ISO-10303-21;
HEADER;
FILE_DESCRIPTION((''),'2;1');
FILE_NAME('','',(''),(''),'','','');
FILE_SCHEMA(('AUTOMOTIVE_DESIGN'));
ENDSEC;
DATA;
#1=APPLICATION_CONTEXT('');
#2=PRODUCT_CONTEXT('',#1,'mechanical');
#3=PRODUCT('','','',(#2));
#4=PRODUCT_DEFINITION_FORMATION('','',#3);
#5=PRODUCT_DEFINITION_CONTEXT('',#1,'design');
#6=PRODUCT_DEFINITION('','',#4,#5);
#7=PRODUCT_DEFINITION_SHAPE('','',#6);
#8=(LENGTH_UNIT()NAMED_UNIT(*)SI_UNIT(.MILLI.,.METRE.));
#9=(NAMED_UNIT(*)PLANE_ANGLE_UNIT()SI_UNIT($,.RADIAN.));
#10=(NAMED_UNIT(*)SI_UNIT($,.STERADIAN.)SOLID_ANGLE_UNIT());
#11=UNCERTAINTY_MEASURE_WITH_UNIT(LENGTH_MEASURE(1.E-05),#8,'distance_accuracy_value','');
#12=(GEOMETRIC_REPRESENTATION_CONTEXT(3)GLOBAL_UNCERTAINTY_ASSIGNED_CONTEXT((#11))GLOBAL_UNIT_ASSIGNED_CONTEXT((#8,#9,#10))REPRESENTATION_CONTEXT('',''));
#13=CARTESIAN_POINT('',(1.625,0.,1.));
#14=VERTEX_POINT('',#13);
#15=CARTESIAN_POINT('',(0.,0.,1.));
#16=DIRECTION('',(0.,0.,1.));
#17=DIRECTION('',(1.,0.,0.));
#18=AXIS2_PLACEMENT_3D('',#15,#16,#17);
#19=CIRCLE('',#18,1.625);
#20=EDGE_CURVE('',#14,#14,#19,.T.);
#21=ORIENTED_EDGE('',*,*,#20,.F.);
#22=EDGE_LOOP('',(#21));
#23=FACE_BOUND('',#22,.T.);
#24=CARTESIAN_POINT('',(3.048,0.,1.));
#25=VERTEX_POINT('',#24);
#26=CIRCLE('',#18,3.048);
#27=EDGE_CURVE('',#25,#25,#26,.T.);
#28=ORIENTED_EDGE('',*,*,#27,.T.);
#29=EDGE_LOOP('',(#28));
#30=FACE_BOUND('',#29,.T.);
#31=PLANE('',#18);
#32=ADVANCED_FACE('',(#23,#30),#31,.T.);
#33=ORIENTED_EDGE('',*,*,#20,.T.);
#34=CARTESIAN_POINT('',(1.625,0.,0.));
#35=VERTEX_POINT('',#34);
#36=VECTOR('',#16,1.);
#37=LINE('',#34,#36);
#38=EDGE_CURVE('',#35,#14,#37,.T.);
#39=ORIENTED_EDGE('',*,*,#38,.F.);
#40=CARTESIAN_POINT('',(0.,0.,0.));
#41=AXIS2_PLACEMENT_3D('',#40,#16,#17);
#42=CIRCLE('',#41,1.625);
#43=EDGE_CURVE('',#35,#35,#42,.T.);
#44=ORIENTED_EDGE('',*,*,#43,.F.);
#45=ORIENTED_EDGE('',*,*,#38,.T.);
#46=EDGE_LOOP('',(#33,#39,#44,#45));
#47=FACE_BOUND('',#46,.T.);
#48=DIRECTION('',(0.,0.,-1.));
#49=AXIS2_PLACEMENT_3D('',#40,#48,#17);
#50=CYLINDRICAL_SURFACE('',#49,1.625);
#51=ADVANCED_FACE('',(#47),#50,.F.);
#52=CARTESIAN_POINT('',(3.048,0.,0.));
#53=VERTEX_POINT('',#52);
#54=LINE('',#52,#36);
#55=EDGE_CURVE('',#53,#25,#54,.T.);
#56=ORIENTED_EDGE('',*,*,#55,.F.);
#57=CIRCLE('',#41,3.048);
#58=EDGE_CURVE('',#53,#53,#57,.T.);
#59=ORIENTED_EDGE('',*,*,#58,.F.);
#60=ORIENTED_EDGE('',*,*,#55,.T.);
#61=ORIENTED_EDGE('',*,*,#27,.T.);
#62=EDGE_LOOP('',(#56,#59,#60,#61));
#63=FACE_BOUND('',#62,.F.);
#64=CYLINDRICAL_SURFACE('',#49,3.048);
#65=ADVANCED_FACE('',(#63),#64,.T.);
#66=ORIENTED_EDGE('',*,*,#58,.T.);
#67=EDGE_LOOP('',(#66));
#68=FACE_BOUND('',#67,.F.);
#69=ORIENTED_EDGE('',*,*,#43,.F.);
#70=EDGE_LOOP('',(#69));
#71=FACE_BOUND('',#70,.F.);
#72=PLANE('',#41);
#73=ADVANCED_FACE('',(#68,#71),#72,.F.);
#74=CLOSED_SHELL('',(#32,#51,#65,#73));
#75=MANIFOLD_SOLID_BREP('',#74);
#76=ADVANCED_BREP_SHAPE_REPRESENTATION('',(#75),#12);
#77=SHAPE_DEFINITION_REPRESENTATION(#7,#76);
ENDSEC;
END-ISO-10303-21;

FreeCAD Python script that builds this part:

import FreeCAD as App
import Part
import Sketcher

doc = App.newDocument("Part")
params = doc.addObject("Spreadsheet::Sheet", "Params")
for row, (alias, value) in enumerate([
    ("sketch1_diameter", "3.25 mm"),
    ("pad1_length", "1 mm"),
], start=1):
    params.set(f"A{row}", alias)
    params.set(f"B{row}", "=" + value)
    params.setAlias(f"B{row}", alias)

body = doc.addObject("PartDesign::Body", "Body")

sketch1 = body.newObject("Sketcher::SketchObject", "Sketch")
sketch1.AttachmentSupport = (doc.getObject("XY_Plane"), [""])
sketch1.MapMode = "FlatFace"
sketch1.addGeometry([
    Part.Circle(App.Vector(0, 0, 0), App.Vector(0, 0, 1), 3.048),
    Part.Circle(App.Vector(0, 0, 0), App.Vector(0, 0, 1), 1.625),
], False)
sketch1.addConstraint([
    Sketcher.Constraint("Coincident", 0, 3, -1, 1),
    Sketcher.Constraint("Coincident", 1, 3, -1, 1),
    Sketcher.Constraint("Diameter", 1, 3.25),
    Sketcher.Constraint("Diameter", 0, 6.096),
])
sketch1.setExpression("Constraints[2]", "Params.sketch1_diameter")
pad1 = body.newObject("PartDesign::Pad", "Pad")
pad1.Profile = sketch1
pad1.setExpression("Length", "Params.pad1_length")

doc.recompute()
